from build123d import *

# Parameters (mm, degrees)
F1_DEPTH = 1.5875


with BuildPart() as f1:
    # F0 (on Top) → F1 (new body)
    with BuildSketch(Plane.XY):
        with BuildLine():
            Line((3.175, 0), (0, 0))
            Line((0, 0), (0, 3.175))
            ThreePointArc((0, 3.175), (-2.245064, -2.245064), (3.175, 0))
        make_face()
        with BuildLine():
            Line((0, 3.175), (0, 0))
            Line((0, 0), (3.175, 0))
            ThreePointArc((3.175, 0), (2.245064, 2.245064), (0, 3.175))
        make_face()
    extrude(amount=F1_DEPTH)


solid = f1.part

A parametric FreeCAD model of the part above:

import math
import FreeCAD as App
import Part
import Sketcher

V = App.Vector
Q = App.Units.Quantity

doc = App.newDocument("Part")
body = doc.addObject("PartDesign::Body", "Body")

# Sketch on XY plane
sketch1 = body.newObject("Sketcher::SketchObject", "Sketch")
sketch1.AttachmentSupport = (doc.getObject("XY_Plane"), [""])
sketch1.MapMode = "FlatFace"
sketch1.addGeometry([
    Part.ArcOfCircle(Part.Circle(V(0, 0, 0), V(0, 0, 1), 3.175), math.radians(90), math.radians(360)),
    Part.ArcOfCircle(Part.Circle(V(0, 0, 0), V(0, 0, 1), 3.175), math.radians(0.000002), math.radians(89.999998)),
], False)
sketch1.addConstraint([
    Sketcher.Constraint("Tangent", 0, 1, 1, 2),
    Sketcher.Constraint("Coincident", 1, 1, 0, 2),
    Sketcher.Constraint("Coincident", 0, 3, -1, 1),
    Sketcher.Constraint("PointOnObject", 0, 1, -2),
    Sketcher.Constraint("PointOnObject", 1, 1, -1),
    Sketcher.Constraint("Radius", 0, Q("0.125 in")),
])
pad1 = body.newObject("PartDesign::Pad", "Pad")
pad1.Profile = sketch1
pad1.Length = Q("0.0625 in")

doc.recompute()
